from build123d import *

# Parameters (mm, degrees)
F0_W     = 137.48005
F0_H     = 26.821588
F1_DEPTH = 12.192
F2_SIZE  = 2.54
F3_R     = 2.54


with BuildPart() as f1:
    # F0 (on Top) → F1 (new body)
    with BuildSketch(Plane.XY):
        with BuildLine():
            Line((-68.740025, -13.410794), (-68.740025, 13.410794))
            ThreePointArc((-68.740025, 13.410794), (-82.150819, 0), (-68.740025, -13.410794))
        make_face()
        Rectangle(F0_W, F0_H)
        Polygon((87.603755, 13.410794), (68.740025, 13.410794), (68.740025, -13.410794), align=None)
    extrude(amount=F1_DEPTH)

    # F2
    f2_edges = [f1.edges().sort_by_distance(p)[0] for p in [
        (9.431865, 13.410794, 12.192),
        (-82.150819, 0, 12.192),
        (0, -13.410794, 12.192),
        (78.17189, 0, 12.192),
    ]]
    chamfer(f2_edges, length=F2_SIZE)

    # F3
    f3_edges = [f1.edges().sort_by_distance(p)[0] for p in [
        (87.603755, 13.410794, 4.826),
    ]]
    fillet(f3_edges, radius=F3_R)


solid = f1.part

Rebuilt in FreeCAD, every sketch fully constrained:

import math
import FreeCAD as App
import Part
import Sketcher
from FreeCAD import Vector
Q = App.Units.Quantity


def edges_at(feature, points):
    """Names of the edges that pass closest to the given points."""
    edges = feature.Shape.Edges
    near = lambda p: min(range(len(edges)), key=lambda i: edges[i].distToShape(Part.Vertex(*p))[0])
    return sorted({f"Edge{near(p) + 1}" for p in points})

doc = App.newDocument("Part")
body = doc.addObject("PartDesign::Body", "Body")

# Sketch on XY plane
sketch1 = doc.addObject("Sketcher::SketchObject", "Sketch")
body.addObject(sketch1)
sketch1.AttachmentSupport = (doc.XY_Plane, [""])
sketch1.MapMode = "FlatFace"
sketch1.addGeometry(Part.ArcOfCircle(Part.Circle(Vector(-68.740025, 0, 0), Vector(0, 0, 1), 13.410794), math.radians(90), math.radians(270)), False)
sketch1.addGeometry(Part.LineSegment(Vector(-68.740025, -13.410794, 0), Vector(68.740025, -13.410794, 0)), False)
sketch1.addGeometry(Part.LineSegment(Vector(68.740025, -13.410794, 0), Vector(87.603755, 13.410794, 0)), False)
sketch1.addGeometry(Part.LineSegment(Vector(87.603755, 13.410794, 0), Vector(-68.740025, 13.410794, 0)), False)
sketch1.addConstraint(Sketcher.Constraint("Tangent", 0, 2, 1, 1))
sketch1.addConstraint(Sketcher.Constraint("Coincident", 1, 2, 2, 1))
sketch1.addConstraint(Sketcher.Constraint("Coincident", 2, 2, 3, 1))
sketch1.addConstraint(Sketcher.Constraint("Tangent", 3, 2, 0, 1))
sketch1.addConstraint(Sketcher.Constraint("Horizontal", 1))
sketch1.addConstraint(Sketcher.Constraint("Horizontal", 3))
sketch1.addConstraint(Sketcher.Constraint("Symmetric", 1, 2, 3, 2, -1, 1))
sketch1.addConstraint(Sketcher.Constraint("DistanceX", 0, 3, -1, 1, Q("2.7063002 in")))
sketch1.addConstraint(Sketcher.Constraint("Radius", 0, Q("13.410794 mm")))
sketch1.addConstraint(Sketcher.Constraint("DistanceX", 3, 2, 3, 1, Q("156.34378 mm")))
pad1 = doc.addObject("PartDesign::Pad", "Pad")
body.addObject(pad1)
pad1.Profile = sketch1
pad1.Length = Q("0.48 in")
doc.recompute()

chamfer = doc.addObject("PartDesign::Chamfer", "Chamfer")
body.addObject(chamfer)
chamfer.Base = (pad1, edges_at(pad1, [
    (9.432, 13.411, 12.192),
    (-82.151, 0, 12.192),
    (0, -13.411, 12.192),
    (78.172, 0, 12.192),
]))
chamfer.Size = Q("0.1 in")
doc.recompute()

fillet = doc.addObject("PartDesign::Fillet", "Fillet")
body.addObject(fillet)
fillet.Base = (chamfer, edges_at(chamfer, [(87.604, 13.411, 4.826)]))
fillet.Radius = Q("0.1 in")

doc.recompute()
